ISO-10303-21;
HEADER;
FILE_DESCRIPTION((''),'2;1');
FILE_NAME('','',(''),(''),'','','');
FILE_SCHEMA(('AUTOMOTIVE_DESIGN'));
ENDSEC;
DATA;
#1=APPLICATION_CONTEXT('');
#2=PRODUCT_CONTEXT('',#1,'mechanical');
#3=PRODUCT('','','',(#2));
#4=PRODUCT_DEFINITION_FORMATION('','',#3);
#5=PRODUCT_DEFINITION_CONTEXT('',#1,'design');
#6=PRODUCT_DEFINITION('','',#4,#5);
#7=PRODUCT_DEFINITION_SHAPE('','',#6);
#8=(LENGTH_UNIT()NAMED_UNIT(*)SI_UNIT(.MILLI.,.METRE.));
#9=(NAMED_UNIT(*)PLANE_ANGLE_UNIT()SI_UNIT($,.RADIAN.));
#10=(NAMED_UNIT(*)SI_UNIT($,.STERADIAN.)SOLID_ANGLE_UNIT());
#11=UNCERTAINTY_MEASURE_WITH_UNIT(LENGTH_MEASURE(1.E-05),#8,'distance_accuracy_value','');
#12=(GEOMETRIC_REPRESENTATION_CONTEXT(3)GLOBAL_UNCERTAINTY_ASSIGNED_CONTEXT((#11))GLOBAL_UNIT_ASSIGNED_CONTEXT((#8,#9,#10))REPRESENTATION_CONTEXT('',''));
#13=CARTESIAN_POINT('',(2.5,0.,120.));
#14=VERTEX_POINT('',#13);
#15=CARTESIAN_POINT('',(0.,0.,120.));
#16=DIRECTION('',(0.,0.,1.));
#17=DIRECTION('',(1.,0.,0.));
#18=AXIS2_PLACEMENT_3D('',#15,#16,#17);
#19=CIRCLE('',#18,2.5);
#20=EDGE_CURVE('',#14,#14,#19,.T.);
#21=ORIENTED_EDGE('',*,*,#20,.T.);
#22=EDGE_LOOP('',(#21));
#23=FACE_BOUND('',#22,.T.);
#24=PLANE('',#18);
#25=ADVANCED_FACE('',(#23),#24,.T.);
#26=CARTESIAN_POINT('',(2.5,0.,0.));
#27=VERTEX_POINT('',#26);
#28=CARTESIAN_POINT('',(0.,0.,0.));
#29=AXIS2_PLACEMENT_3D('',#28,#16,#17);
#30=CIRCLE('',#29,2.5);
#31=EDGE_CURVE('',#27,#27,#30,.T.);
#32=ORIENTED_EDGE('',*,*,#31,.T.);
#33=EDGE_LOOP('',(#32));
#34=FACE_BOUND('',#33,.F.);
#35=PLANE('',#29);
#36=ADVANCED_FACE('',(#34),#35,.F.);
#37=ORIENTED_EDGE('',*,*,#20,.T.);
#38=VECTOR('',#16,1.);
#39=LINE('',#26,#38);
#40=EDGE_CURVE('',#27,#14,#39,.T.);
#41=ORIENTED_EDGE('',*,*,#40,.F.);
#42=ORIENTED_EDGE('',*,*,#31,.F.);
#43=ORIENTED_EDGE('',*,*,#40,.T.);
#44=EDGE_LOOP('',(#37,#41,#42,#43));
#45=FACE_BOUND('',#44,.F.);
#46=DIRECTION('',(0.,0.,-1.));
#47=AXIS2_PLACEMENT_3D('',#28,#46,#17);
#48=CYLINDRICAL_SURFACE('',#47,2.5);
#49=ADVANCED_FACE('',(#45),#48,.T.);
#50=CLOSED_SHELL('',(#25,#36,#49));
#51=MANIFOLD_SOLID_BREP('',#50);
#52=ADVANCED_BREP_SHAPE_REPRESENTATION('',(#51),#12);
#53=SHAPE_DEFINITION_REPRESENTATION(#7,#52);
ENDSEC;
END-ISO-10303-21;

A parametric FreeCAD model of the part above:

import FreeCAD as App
import Part
import Sketcher
from FreeCAD import Vector

doc = App.newDocument("Part")
body = doc.addObject("PartDesign::Body", "Body")

# Sketch on XY plane
sketch1 = body.newObject("Sketcher::SketchObject", "Sketch")
sketch1.AttachmentSupport = (doc.getObject("XY_Plane"), [""])
sketch1.MapMode = "FlatFace"
sketch1.addGeometry(Part.Circle(Vector(0, 0, 0), Vector(0, 0, 1), 2.5), False)
sketch1.addConstraint([
    Sketcher.Constraint("Coincident", 0, 3, -1, 1),
    Sketcher.Constraint("Diameter", 0, 5.0),
])
pad1 = body.newObject("PartDesign::Pad", "Pad")
pad1.Profile = sketch1
pad1.Length = 120

doc.recompute()
